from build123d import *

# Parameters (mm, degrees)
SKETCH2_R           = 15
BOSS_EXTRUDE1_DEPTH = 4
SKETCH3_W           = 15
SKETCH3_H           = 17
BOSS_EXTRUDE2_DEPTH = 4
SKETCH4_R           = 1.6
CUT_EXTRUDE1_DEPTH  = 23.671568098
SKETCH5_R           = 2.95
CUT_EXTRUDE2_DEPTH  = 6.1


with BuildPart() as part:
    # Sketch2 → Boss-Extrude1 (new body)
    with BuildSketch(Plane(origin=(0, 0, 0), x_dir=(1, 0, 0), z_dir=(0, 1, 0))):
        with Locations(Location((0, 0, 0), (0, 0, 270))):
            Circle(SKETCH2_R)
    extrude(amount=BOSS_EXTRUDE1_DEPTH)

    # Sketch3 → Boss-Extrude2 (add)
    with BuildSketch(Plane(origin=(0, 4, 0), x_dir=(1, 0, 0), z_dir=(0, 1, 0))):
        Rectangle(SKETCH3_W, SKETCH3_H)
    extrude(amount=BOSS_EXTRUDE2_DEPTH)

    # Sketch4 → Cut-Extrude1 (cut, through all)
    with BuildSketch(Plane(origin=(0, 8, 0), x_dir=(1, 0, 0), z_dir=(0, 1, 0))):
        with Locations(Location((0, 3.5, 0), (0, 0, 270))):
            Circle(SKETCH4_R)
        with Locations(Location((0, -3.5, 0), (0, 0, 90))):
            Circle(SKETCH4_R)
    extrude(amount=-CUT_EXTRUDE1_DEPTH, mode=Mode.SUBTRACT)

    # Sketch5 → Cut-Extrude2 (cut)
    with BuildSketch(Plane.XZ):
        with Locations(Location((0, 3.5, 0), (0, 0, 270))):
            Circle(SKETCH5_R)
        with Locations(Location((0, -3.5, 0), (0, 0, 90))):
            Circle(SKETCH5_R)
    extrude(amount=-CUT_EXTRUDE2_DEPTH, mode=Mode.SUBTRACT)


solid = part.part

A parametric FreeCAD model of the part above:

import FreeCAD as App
import Part
import Sketcher
from FreeCAD import Vector
Q = App.Units.Quantity


def add_polygon(sketch, points):
    """Adds a closed chain of lines whose ends are joined by coincident constraints."""
    first, n = sketch.GeometryCount, len(points)
    for a, b in zip(points, points[1:] + points[:1]):
        sketch.addGeometry(Part.LineSegment(App.Vector(*a, 0), App.Vector(*b, 0)), False)
    for i in range(n):
        sketch.addConstraint(Sketcher.Constraint("Coincident", first + i, 2, first + (i + 1) % n, 1))

doc = App.newDocument("Part")
body = doc.addObject("PartDesign::Body", "Body")

# Sketch on XZ plane
sketch1 = doc.addObject("Sketcher::SketchObject", "Sketch")
body.addObject(sketch1)
sketch1.AttachmentSupport = (doc.XZ_Plane, [""])
sketch1.MapMode = "FlatFace"
sketch1.addGeometry(Part.Circle(Vector(0, 0, 0), Vector(0, 0, 1), 15), False)
sketch1.addConstraint([
    Sketcher.Constraint("Coincident", 0, 3, -1, 1),
    Sketcher.Constraint("Diameter", 0, Q("30 mm")),
])
pad1 = doc.addObject("PartDesign::Pad", "Pad")
body.addObject(pad1)
pad1.Profile = sketch1
pad1.Length = 4
pad1.Reversed = True

# Sketch on XZ plane
sketch2 = doc.addObject("Sketcher::SketchObject", "Sketch001")
body.addObject(sketch2)
sketch2.AttachmentSupport = (doc.XZ_Plane, [""])
sketch2.MapMode = "FlatFace"
sketch2.AttachmentOffset = App.Placement(Vector(0, 0, -4), App.Rotation())
add_polygon(sketch2, [(-7.5, -8.5), (-7.5, 8.5), (7.5, 8.5), (7.5, -8.5)])  # lines 0-3
sketch2.addConstraint([
    Sketcher.Constraint("Vertical", 0),
    Sketcher.Constraint("Horizontal", 1),
    Sketcher.Constraint("Vertical", 2),
    Sketcher.Constraint("Horizontal", 3),
    Sketcher.Constraint("Symmetric", 0, 2, 2, 2, -1, 1),
    Sketcher.Constraint("DistanceX", 1, 1, 1, 2, Q("15 mm")),
    Sketcher.Constraint("DistanceY", 0, 1, 0, 2, Q("17 mm")),
])
pad2 = doc.addObject("PartDesign::Pad", "Pad001")
body.addObject(pad2)
pad2.Profile = sketch2
pad2.Length = 4
pad2.Reversed = True

# Sketch on XZ plane
sketch3 = doc.addObject("Sketcher::SketchObject", "Sketch002")
body.addObject(sketch3)
sketch3.AttachmentSupport = (doc.XZ_Plane, [""])
sketch3.MapMode = "FlatFace"
sketch3.AttachmentOffset = App.Placement(Vector(0, 0, -8), App.Rotation())
sketch3.addGeometry([
    Part.Circle(Vector(0, -3.5, 0), Vector(0, 0, 1), 1.6),
    Part.Circle(Vector(0, 3.5, 0), Vector(0, 0, 1), 1.6),
], False)
sketch3.addConstraint([
    Sketcher.Constraint("Equal", 0, 1),
    Sketcher.Constraint("Symmetric", 0, 3, 1, 3, -1, 1),
    Sketcher.Constraint("PointOnObject", 0, 3, -2),
    Sketcher.Constraint("Diameter", 0, Q("3.2 mm")),
    Sketcher.Constraint("DistanceY", 0, 3, 1, 3, Q("7 mm")),
])
pocket1 = doc.addObject("PartDesign::Pocket", "Pocket")
body.addObject(pocket1)
pocket1.Profile = sketch3
pocket1.Type = "ThroughAll"
pocket1.Reversed = True

# Sketch on XZ plane
sketch4 = doc.addObject("Sketcher::SketchObject", "Sketch003")
body.addObject(sketch4)
sketch4.AttachmentSupport = (doc.XZ_Plane, [""])
sketch4.MapMode = "FlatFace"
sketch4.addGeometry([
    Part.Circle(Vector(0, 3.5, 0), Vector(0, 0, 1), 2.95),
    Part.Circle(Vector(0, -3.5, 0), Vector(0, 0, 1), 2.95),
], False)
sketch4.addConstraint([
    Sketcher.Constraint("Equal", 0, 1),
    Sketcher.Constraint("Symmetric", 0, 3, 1, 3, -1, 1),
    Sketcher.Constraint("PointOnObject", 0, 3, -2),
    Sketcher.Constraint("Diameter", 0, Q("5.9 mm")),
    Sketcher.Constraint("DistanceY", 1, 3, 0, 3, Q("7 mm")),
])
pocket2 = doc.addObject("PartDesign::Pocket", "Pocket001")
body.addObject(pocket2)
pocket2.Profile = sketch4
pocket2.Length = 6.1

doc.recompute()
